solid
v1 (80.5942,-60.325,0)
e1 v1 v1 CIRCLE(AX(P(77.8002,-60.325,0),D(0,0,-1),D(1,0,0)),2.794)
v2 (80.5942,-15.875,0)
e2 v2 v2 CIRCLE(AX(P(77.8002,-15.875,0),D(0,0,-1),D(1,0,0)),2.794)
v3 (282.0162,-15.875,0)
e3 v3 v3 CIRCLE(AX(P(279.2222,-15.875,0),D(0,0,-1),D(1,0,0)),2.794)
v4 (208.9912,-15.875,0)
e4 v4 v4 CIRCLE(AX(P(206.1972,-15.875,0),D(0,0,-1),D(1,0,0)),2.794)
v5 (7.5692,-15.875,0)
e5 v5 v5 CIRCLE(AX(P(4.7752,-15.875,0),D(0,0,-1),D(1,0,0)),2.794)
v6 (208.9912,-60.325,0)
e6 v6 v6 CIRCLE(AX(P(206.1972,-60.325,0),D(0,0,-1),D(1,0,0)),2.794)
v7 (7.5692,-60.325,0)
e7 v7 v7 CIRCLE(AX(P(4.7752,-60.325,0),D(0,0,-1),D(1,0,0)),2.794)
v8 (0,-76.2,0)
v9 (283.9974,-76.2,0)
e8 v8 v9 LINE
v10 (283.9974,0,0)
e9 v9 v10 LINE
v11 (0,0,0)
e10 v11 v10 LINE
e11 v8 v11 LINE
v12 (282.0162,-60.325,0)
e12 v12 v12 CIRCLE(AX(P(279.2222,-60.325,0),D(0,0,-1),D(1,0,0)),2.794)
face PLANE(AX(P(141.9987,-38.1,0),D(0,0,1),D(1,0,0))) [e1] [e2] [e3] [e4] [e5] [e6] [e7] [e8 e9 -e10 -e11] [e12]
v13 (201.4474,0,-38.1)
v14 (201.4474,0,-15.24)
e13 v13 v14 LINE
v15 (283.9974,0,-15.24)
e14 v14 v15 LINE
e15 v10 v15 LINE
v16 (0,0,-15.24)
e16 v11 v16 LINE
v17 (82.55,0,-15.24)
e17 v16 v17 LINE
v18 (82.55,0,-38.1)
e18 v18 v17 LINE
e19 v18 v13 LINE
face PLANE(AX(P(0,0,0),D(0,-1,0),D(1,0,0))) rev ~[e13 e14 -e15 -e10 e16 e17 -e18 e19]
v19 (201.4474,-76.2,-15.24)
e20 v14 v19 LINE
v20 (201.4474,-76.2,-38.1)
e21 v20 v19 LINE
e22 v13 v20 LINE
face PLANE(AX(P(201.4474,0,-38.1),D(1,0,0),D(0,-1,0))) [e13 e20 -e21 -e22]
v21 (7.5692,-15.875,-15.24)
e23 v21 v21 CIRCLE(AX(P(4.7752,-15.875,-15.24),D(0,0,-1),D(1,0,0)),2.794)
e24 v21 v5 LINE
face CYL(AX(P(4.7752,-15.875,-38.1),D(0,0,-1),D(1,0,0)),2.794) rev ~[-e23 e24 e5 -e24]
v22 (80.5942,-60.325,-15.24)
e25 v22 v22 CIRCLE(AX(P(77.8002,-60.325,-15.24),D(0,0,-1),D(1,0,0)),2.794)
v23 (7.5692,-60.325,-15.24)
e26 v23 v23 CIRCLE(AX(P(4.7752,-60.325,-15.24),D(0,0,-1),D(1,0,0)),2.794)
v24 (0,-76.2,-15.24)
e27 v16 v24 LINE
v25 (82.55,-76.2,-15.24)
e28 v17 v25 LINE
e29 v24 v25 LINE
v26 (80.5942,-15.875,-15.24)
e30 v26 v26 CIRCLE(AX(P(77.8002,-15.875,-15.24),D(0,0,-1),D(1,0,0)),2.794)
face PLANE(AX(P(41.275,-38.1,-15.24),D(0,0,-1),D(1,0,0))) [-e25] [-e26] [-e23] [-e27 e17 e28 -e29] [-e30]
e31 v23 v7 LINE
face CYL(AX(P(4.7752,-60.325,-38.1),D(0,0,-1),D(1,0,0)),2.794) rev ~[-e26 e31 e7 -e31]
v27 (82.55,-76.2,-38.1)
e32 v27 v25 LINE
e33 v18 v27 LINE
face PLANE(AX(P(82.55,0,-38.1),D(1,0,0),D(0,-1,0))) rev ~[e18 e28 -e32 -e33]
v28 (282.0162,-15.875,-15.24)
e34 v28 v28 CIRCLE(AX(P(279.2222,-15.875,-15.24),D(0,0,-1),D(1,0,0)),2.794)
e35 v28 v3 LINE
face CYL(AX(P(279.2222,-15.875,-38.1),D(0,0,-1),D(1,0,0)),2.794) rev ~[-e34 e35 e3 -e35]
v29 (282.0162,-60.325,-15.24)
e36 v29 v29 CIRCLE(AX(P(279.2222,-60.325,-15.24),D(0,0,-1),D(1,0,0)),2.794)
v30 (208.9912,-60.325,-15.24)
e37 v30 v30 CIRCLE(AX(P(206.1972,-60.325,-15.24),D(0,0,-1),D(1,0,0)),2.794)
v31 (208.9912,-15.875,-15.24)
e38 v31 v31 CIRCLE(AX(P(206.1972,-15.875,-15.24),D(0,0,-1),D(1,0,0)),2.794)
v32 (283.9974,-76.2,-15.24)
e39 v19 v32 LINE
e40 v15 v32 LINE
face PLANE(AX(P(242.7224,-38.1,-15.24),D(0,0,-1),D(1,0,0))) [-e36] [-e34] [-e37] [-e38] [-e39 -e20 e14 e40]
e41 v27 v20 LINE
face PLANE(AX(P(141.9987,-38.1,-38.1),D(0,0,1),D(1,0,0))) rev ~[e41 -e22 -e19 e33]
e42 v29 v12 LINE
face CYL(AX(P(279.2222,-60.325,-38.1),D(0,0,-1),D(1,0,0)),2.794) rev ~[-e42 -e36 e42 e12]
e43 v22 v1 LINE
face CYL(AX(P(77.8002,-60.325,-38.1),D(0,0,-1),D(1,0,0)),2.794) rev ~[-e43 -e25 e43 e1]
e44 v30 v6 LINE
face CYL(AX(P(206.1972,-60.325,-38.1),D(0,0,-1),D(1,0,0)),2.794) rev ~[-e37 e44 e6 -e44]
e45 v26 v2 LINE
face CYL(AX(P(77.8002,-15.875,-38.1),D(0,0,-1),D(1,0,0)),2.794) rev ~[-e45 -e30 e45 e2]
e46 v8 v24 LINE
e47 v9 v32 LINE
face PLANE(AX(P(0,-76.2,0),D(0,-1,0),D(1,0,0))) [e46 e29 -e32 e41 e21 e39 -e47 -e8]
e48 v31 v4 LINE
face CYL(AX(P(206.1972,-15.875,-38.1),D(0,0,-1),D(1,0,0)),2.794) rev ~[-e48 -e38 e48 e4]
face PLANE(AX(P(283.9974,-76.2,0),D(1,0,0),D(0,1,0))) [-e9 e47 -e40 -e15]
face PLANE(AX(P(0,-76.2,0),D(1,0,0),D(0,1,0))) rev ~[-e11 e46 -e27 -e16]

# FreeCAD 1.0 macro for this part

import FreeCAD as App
import Part
import Sketcher
Q = App.Units.Quantity


def add_polygon(sketch, points):
    """Adds a closed chain of lines whose ends are joined by coincident constraints."""
    first, n = sketch.GeometryCount, len(points)
    for a, b in zip(points, points[1:] + points[:1]):
        sketch.addGeometry(Part.LineSegment(App.Vector(*a, 0), App.Vector(*b, 0)), False)
    for i in range(n):
        sketch.addConstraint(Sketcher.Constraint("Coincident", first + i, 2, first + (i + 1) % n, 1))

doc = App.newDocument("Part")
body = doc.addObject("PartDesign::Body", "Body")

# Sketch on XY plane
sketch1 = body.newObject("Sketcher::SketchObject", "Sketch")
sketch1.AttachmentSupport = (doc.getObject("XY_Plane"), [""])
sketch1.MapMode = "FlatFace"
add_polygon(sketch1, [(0, 0), (0, -76.2), (283.9974, -76.2), (283.9974, 0)])  # lines 0-3
sketch1.addConstraint(Sketcher.Constraint("Vertical", 0))
sketch1.addConstraint(Sketcher.Constraint("Horizontal", 1))
sketch1.addConstraint(Sketcher.Constraint("Vertical", 2))
sketch1.addConstraint(Sketcher.Constraint("Horizontal", 3))
sketch1.addConstraint(Sketcher.Constraint("Coincident", 3, 2, -1, 1))
sketch1.addConstraint(Sketcher.Constraint("DistanceY", 0, 2, 0, 1, Q("3 in")))
sketch1.addConstraint(Sketcher.Constraint("DistanceX", 1, 1, 1, 2, Q("11.181 in")))
pad1 = body.newObject("PartDesign::Pad", "Pad")
pad1.Profile = sketch1
pad1.Length = Q("1.5 in")
pad1.Reversed = True

# Sketch on XY plane
sketch2 = body.newObject("Sketcher::SketchObject", "Sketch001")
sketch2.AttachmentSupport = (doc.getObject("XY_Plane"), [""])
sketch2.MapMode = "FlatFace"
sketch2.AttachmentOffset = App.Placement(App.Vector(0, 0, -1.5 * 25.4), App.Rotation())
sketch2.addGeometry(Part.Circle(App.Vector(279.2222, -15.875, 0), App.Vector(0, 0, 1), 2.794), False)
sketch2.addGeometry(Part.Circle(App.Vector(279.2222, -60.325, 0), App.Vector(0, 0, 1), 2.794), False)
sketch2.addGeometry(Part.Circle(App.Vector(206.1972, -60.325, 0), App.Vector(0, 0, 1), 2.794), False)
sketch2.addGeometry(Part.Circle(App.Vector(206.1972, -15.875, 0), App.Vector(0, 0, 1), 2.794), False)
sketch2.addGeometry(Part.Circle(App.Vector(77.8002, -60.325, 0), App.Vector(0, 0, 1), 2.794), False)
sketch2.addGeometry(Part.Circle(App.Vector(77.8002, -15.875, 0), App.Vector(0, 0, 1), 2.794), False)
sketch2.addGeometry(Part.Circle(App.Vector(4.7752, -15.875, 0), App.Vector(0, 0, 1), 2.794), False)
sketch2.addGeometry(Part.Circle(App.Vector(4.7752, -60.325, 0), App.Vector(0, 0, 1), 2.794), False)
sketch2.addConstraint(Sketcher.Constraint("Equal", 0, 1))
sketch2.addConstraint(Sketcher.Constraint("Equal", 1, 2))
sketch2.addConstraint(Sketcher.Constraint("Equal", 2, 3))
sketch2.addConstraint(Sketcher.Constraint("Equal", 3, 4))
sketch2.addConstraint(Sketcher.Constraint("Equal", 4, 5))
sketch2.addConstraint(Sketcher.Constraint("Equal", 5, 6))
sketch2.addConstraint(Sketcher.Constraint("Equal", 6, 7))
sketch2.addConstraint(Sketcher.Constraint("Horizontal", 1, 3, 2, 3))
sketch2.addConstraint(Sketcher.Constraint("Horizontal", 0, 3, 3, 3))
sketch2.addConstraint(Sketcher.Constraint("Horizontal", 2, 3, 4, 3))
sketch2.addConstraint(Sketcher.Constraint("Horizontal", 3, 3, 5, 3))
sketch2.addConstraint(Sketcher.Constraint("Horizontal", 5, 3, 6, 3))
sketch2.addConstraint(Sketcher.Constraint("Horizontal", 4, 3, 7, 3))
sketch2.addConstraint(Sketcher.Constraint("Vertical", 0, 3, 1, 3))
sketch2.addConstraint(Sketcher.Constraint("Vertical", 2, 3, 3, 3))
sketch2.addConstraint(Sketcher.Constraint("Vertical", 4, 3, 5, 3))
sketch2.addConstraint(Sketcher.Constraint("Vertical", 6, 3, 7, 3))
sketch2.addConstraint(Sketcher.Constraint("Diameter", 0, Q("0.22 in")))
sketch2.addConstraint(Sketcher.Constraint("DistanceY", 1, 3, 0, 3, Q("1.75 in")))
sketch2.addConstraint(Sketcher.Constraint("DistanceX", 4, 3, 1, 3, Q("7.93 in")))
sketch2.addConstraint(Sketcher.Constraint("DistanceX", 6, 3, 3, 3, Q("7.93 in")))
sketch2.addConstraint(Sketcher.Constraint("DistanceX", -1, 1, 0, 3, Q("10.993 in")))
sketch2.addConstraint(Sketcher.Constraint("DistanceY", 0, 3, -1, 1, Q("0.625 in")))
sketch2.addConstraint(Sketcher.Constraint("DistanceX", -1, 1, 2, 3, Q("8.118 in")))
pocket1 = body.newObject("PartDesign::Pocket", "Pocket")
pocket1.Profile = sketch2
pocket1.Type = "ThroughAll"
pocket1.Reversed = True

# Sketch on XY plane
sketch3 = body.newObject("Sketcher::SketchObject", "Sketch002")
sketch3.AttachmentSupport = (doc.getObject("XY_Plane"), [""])
sketch3.MapMode = "FlatFace"
sketch3.AttachmentOffset = App.Placement(App.Vector(0, 0, -1.5 * 25.4), App.Rotation())
add_polygon(sketch3, [(0, -76.2), (0, 0), (82.55, 0), (82.55, -76.2)])  # lines 0-3
add_polygon(sketch3, [(201.4474, -76.2), (201.4474, 0), (283.9974, 0), (283.9974, -76.2)])  # lines 4-7
sketch3.addConstraint(Sketcher.Constraint("Vertical", 0))
sketch3.addConstraint(Sketcher.Constraint("Horizontal", 1))
sketch3.addConstraint(Sketcher.Constraint("Vertical", 2))
sketch3.addConstraint(Sketcher.Constraint("Horizontal", 3))
sketch3.addConstraint(Sketcher.Constraint("Vertical", 4))
sketch3.addConstraint(Sketcher.Constraint("Horizontal", 5))
sketch3.addConstraint(Sketcher.Constraint("Vertical", 6))
sketch3.addConstraint(Sketcher.Constraint("Horizontal", 7))
sketch3.addConstraint(Sketcher.Constraint("Coincident", 0, 2, -1, 1))
sketch3.addConstraint(Sketcher.Constraint("PointOnObject", 4, 2, -1))
sketch3.addConstraint(Sketcher.Constraint("Horizontal", 3, 2, 6, 2))
sketch3.addConstraint(Sketcher.Constraint("Equal", 3, 5))
sketch3.addConstraint(Sketcher.Constraint("DistanceY", 0, 1, 0, 2, Q("3 in")))
sketch3.addConstraint(Sketcher.Constraint("DistanceX", 1, 1, 1, 2, Q("3.25 in")))
sketch3.addConstraint(Sketcher.Constraint("DistanceX", -1, 1, 4, 2, Q("7.931 in")))
pocket2 = body.newObject("PartDesign::Pocket", "Pocket001")
pocket2.Profile = sketch3
pocket2.Length = Q("0.9 in")
pocket2.Reversed = True

doc.recompute()
